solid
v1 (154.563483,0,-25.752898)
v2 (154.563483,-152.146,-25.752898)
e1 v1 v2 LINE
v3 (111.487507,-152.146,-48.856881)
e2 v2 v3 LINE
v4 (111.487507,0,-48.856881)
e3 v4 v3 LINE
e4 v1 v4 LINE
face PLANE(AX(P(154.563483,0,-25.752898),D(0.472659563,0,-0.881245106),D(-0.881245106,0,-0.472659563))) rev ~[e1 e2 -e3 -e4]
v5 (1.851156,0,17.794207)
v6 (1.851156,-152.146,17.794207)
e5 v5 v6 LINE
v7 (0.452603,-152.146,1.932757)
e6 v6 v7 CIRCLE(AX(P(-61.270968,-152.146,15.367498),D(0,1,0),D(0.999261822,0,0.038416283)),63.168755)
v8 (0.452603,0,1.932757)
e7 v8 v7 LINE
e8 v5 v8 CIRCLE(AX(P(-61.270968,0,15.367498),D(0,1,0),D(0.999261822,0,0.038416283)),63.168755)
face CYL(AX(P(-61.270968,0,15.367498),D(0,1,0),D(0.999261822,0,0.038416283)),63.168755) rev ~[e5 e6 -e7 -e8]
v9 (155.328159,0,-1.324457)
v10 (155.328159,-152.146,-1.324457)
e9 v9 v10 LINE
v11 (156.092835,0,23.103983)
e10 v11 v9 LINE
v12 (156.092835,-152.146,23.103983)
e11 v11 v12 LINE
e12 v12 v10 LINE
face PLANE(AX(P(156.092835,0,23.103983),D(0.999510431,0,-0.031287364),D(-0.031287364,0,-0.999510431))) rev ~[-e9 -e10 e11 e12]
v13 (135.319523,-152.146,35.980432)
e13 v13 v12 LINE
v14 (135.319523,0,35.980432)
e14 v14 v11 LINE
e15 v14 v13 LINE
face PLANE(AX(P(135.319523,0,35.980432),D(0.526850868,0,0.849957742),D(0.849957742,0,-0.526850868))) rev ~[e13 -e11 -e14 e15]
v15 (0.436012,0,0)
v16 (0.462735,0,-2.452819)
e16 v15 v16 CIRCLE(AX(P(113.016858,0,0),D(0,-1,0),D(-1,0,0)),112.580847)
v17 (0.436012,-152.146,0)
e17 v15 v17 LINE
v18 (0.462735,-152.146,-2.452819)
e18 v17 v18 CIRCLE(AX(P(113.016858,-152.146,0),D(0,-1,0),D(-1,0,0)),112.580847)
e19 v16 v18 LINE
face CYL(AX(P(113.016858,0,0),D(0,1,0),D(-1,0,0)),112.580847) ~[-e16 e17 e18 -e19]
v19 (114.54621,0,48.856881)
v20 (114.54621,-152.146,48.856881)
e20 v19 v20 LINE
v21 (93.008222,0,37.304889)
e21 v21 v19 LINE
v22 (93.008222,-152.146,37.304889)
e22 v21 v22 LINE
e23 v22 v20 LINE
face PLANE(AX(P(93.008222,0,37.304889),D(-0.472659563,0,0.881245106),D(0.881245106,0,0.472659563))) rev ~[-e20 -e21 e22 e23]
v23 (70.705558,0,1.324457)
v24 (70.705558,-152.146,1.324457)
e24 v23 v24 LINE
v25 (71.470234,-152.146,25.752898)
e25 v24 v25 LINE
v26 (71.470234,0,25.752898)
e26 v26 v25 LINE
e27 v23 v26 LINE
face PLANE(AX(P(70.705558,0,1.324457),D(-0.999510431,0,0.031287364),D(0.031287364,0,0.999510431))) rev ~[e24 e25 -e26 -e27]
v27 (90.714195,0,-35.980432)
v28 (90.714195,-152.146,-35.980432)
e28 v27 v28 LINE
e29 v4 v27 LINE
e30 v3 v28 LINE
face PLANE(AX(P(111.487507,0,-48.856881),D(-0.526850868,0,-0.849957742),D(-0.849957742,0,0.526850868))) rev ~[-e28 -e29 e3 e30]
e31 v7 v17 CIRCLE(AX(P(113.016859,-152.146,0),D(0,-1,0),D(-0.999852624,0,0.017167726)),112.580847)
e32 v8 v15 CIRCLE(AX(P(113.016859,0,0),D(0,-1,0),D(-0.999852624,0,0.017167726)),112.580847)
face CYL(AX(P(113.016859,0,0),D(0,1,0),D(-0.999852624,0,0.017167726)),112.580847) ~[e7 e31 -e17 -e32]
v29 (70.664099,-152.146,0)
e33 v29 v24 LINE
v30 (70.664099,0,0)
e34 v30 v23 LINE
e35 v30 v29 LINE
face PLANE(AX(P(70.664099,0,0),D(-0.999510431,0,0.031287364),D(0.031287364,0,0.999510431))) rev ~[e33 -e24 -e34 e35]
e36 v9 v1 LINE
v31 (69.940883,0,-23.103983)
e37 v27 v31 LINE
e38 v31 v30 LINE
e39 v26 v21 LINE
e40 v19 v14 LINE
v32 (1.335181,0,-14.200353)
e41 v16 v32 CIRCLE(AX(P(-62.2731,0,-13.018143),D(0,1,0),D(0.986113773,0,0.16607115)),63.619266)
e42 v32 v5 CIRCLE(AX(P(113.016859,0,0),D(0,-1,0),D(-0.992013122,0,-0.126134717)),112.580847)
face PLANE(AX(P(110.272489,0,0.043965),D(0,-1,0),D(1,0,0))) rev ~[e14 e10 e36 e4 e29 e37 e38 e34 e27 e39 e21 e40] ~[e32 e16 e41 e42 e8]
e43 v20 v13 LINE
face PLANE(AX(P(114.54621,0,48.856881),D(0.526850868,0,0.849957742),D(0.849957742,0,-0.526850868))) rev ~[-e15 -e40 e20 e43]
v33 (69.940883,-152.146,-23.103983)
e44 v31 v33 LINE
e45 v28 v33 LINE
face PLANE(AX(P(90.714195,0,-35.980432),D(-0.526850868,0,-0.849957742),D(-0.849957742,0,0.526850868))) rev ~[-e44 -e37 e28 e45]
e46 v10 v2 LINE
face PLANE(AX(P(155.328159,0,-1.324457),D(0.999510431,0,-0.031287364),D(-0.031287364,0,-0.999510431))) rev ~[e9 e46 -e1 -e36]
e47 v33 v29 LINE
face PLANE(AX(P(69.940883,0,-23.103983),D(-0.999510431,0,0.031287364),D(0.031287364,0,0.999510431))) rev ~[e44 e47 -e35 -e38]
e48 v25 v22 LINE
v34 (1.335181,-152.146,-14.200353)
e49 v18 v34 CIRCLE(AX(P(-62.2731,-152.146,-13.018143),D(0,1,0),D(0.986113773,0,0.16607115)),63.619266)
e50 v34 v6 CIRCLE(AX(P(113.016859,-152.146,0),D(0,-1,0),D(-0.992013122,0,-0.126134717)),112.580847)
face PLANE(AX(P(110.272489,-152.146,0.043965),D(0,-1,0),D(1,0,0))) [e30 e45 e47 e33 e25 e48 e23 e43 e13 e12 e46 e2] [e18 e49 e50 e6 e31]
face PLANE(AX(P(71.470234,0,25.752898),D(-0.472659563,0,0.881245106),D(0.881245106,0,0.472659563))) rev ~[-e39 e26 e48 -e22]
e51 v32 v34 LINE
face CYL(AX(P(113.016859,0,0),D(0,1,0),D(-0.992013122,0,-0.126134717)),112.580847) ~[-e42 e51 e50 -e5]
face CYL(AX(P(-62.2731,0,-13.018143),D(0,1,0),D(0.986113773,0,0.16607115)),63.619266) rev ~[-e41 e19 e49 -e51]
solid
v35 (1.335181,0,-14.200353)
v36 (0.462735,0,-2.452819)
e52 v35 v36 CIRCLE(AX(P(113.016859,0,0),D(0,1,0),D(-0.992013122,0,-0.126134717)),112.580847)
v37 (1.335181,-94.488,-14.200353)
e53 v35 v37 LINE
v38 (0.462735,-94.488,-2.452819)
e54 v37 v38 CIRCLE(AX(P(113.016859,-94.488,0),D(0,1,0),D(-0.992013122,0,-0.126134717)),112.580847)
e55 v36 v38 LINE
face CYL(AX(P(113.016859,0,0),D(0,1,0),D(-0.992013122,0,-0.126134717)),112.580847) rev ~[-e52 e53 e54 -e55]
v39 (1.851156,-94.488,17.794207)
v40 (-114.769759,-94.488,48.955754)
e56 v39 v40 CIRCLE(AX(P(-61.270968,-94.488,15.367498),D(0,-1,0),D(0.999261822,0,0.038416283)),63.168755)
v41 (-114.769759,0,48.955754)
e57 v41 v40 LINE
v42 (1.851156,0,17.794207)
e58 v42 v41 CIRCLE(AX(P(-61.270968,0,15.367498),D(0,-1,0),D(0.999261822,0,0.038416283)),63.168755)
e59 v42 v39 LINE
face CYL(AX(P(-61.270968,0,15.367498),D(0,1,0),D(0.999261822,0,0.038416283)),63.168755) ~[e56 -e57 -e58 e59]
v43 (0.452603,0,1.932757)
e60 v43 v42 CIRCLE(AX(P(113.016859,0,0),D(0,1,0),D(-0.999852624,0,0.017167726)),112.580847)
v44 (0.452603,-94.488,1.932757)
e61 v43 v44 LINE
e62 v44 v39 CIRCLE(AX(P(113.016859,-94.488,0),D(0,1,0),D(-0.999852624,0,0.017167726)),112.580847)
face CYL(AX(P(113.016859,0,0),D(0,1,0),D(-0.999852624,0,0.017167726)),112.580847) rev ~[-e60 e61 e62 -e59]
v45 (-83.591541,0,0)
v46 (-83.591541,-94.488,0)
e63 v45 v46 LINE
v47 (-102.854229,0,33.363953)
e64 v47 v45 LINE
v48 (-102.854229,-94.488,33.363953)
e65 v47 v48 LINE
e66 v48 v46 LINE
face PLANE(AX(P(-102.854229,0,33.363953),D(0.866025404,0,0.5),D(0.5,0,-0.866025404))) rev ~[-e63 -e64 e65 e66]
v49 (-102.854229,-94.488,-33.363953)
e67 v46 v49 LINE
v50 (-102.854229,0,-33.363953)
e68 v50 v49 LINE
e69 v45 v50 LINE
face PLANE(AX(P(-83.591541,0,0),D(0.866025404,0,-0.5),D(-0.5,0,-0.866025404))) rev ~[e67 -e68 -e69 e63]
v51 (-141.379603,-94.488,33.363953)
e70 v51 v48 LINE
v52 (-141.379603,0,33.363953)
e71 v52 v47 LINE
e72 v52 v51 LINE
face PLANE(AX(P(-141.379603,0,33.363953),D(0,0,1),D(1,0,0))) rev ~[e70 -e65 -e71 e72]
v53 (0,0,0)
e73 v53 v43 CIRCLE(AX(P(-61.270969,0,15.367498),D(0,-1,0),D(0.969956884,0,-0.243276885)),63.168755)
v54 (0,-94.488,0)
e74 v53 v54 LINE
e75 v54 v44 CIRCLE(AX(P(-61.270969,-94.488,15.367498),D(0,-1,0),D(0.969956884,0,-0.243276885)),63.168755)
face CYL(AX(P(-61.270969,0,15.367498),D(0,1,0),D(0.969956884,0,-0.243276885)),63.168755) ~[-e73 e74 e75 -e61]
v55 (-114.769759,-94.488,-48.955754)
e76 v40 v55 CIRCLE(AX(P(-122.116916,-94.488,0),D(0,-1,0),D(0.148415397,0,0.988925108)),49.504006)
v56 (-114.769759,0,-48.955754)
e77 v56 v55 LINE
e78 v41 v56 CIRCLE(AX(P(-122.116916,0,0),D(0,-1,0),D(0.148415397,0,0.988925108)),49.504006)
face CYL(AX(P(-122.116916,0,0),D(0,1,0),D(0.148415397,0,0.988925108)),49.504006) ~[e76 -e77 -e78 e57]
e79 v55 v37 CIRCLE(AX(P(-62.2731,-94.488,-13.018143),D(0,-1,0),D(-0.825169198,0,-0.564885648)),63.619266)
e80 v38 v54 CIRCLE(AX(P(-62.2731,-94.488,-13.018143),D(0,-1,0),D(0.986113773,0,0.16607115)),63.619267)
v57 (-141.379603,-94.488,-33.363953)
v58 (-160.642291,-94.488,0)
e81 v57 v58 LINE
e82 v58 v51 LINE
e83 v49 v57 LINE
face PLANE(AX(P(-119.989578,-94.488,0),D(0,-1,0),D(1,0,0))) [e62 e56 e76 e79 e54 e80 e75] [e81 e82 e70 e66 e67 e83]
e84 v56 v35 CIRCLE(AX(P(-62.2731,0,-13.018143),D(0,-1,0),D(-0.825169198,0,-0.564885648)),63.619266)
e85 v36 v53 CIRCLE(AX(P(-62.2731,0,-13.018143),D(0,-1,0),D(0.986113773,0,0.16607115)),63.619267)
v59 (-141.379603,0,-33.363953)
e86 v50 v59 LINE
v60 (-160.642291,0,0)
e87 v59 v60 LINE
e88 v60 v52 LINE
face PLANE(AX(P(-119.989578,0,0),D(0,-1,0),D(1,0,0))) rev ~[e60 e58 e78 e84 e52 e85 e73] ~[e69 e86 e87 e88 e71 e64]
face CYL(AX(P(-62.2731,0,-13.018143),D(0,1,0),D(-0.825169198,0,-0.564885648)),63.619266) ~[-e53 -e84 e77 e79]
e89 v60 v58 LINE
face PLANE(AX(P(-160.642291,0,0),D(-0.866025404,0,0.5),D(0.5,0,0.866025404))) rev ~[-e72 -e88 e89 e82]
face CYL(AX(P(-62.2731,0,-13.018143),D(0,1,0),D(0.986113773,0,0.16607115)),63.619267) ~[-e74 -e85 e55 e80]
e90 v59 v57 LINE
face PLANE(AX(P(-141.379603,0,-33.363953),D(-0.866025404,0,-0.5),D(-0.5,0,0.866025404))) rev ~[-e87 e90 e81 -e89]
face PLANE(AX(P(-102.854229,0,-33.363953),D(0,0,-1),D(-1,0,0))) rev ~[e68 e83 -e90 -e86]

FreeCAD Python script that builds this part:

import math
import FreeCAD as App
import Part
import Sketcher

V = App.Vector
Q = App.Units.Quantity


def add_polygon(sketch, points):
    """Adds a closed chain of lines whose ends are joined by coincident constraints."""
    first, n = sketch.GeometryCount, len(points)
    for a, b in zip(points, points[1:] + points[:1]):
        sketch.addGeometry(Part.LineSegment(App.Vector(*a, 0), App.Vector(*b, 0)), False)
    for i in range(n):
        sketch.addConstraint(Sketcher.Constraint("Coincident", first + i, 2, first + (i + 1) % n, 1))

doc = App.newDocument("Part")
body = doc.addObject("PartDesign::Body", "Body")

# Sketch on XZ plane
sketch1 = doc.addObject("Sketcher::SketchObject", "Sketch")
body.addObject(sketch1)
sketch1.AttachmentSupport = (doc.XZ_Plane, [""])
sketch1.MapMode = "FlatFace"
sketch1.addGeometry(Part.ArcOfCircle(Part.Circle(V(113, 0, 0), V(0, 0, 1), 112.6), math.radians(179.02), math.radians(180)), False)  # 0
sketch1.addGeometry(Part.ArcOfCircle(Part.Circle(V(113, 0, 0), V(0, 0, 1), 112.6), math.radians(180), math.radians(181.25)), False)  # 1
sketch1.addGeometry(Part.ArcOfCircle(Part.Circle(V(-62.3, -13, 0), V(0, 0, 1), 63.6), math.radians(-1.06), math.radians(9.56)), False)  # 2
sketch1.addGeometry(Part.ArcOfCircle(Part.Circle(V(113, 0, 0), V(0, 0, 1), 112.6), math.radians(-173), math.radians(171)), False)  # 3
sketch1.addGeometry(Part.ArcOfCircle(Part.Circle(V(-61.3, 15.4, 0), V(0, 0, 1), 63.2), math.radians(-12.28), math.radians(2.2)), False)  # 4
add_polygon(sketch1, [(90.7, -36), (69.9, -23.1), (70.7, 0), (70.7, 1.3), (71.5, 25.8), (93, 37.3), (114.5, 48.9), (135.3, 36), (156.1, 23.1), (155.3, -1.3), (154.6, -25.8), (111.5, -48.9)])  # lines 5-16
sketch1.addConstraint([
    Sketcher.Constraint("Tangent", 0, 2, 1, 1),
    Sketcher.Constraint("Coincident", 1, 2, 2, 2),
    Sketcher.Constraint("Coincident", 2, 1, 3, 1),
    Sketcher.Constraint("Coincident", 3, 2, 4, 2),
    Sketcher.Constraint("Coincident", 4, 1, 0, 1),
    Sketcher.Constraint("Coincident", 3, 3, 0, 3),
    Sketcher.Constraint("Equal", 0, 1),
    Sketcher.Constraint("Equal", 1, 3),
    Sketcher.Constraint("PointOnObject", 0, 3, -1),
    Sketcher.Constraint("PointOnObject", 0, 2, -1),
    Sketcher.Constraint("PointOnObject", 6, 2, -1),
    Sketcher.Constraint("Parallel", 6, 7),
    Sketcher.Constraint("Parallel", 7, 8),
    Sketcher.Constraint("Parallel", 9, 10),
    Sketcher.Constraint("Parallel", 5, 11),
    Sketcher.Constraint("Parallel", 11, 12),
    Sketcher.Constraint("Parallel", 8, 13),
    Sketcher.Constraint("Parallel", 13, 14),
    Sketcher.Constraint("Parallel", 10, 15),
    Sketcher.Constraint("Parallel", 12, 16),
    Sketcher.Constraint("Equal", 5, 8),
    Sketcher.Constraint("Equal", 8, 9),
    Sketcher.Constraint("Equal", 9, 10),
    Sketcher.Constraint("Equal", 10, 11),
    Sketcher.Constraint("Equal", 11, 12),
    Sketcher.Constraint("Equal", 12, 13),
    Sketcher.Constraint("Equal", 13, 14),
    Sketcher.Constraint("Equal", 14, 16),
    Sketcher.Constraint("Radius", 0, Q("112.580847 mm")),
    Sketcher.Constraint("Radius", 2, Q("63.619266 mm")),
    Sketcher.Constraint("Radius", 4, Q("63.168755 mm")),
    Sketcher.Constraint("Distance", 6, Q("23.1153 mm")),
    Sketcher.Constraint("DistanceX", 2, 3, -1, 1, Q("62.2731 mm")),
    Sketcher.Constraint("DistanceX", -1, 1, 6, 2, Q("70.664099 mm")),
    Sketcher.Constraint("DistanceY", -1, 1, 8, 2, Q("25.752898 mm")),
    Sketcher.Constraint("DistanceY", 14, 2, -1, 1, Q("25.752898 mm")),
    Sketcher.Constraint("DistanceX", 2, 1, 5, 2, Q("68.605701 mm")),
    Sketcher.Constraint("DistanceX", 7, 2, 1, 3, Q("42.3113 mm")),
    Sketcher.Constraint("DistanceX", 9, 2, 11, 2, Q("42.311301 mm")),
    Sketcher.Constraint("DistanceX", 4, 3, -1, 1, Q("61.270968 mm")),
    Sketcher.Constraint("DistanceY", 1, 2, -1, 1, Q("2.452819 mm")),
    Sketcher.Constraint("DistanceY", 2, 3, 4, 3, Q("28.385641 mm")),
])
pad1 = doc.addObject("PartDesign::Pad", "Pad")
body.addObject(pad1)
pad1.Profile = sketch1
pad1.Length = Q("5.99 in")
body2 = doc.addObject("PartDesign::Body", "Body001")

# Sketch on XZ plane
sketch2 = doc.addObject("Sketcher::SketchObject", "Sketch001")
body2.addObject(sketch2)
sketch2.AttachmentSupport = (doc.getObject("XZ_Plane001"), [""])
sketch2.MapMode = "FlatFace"
sketch2.addGeometry(Part.ArcOfCircle(Part.Circle(V(-61.270969, 15.367498, 0), V(0, 0, 1), 63.168755), math.radians(-14.080026), math.radians(-12.279463)), False)  # 0
sketch2.addGeometry(Part.ArcOfCircle(Part.Circle(V(113.016859, 0, 0), V(0, 0, 1), 112.580847), math.radians(170.905856), math.radians(179.016313)), False)  # 1
sketch2.addGeometry(Part.ArcOfCircle(Part.Circle(V(-61.270968, 15.367498, 0), V(0, 0, 1), 63.168755), math.radians(2.201633), math.radians(147.87808)), False)  # 2
sketch2.addGeometry(Part.ArcOfCircle(Part.Circle(V(-122.116916, 0, 0), V(0, 0, 1), 49.504006), math.radians(81.464892), math.radians(278.535108)), False)  # 3
sketch2.addGeometry(Part.ArcOfCircle(Part.Circle(V(-62.2731, -13.018143, 0), V(0, 0, 1), 63.619266), math.radians(-145.605649), math.radians(-1.064764)), False)  # 4
sketch2.addGeometry(Part.ArcOfCircle(Part.Circle(V(113.016859, 0, 0), V(0, 0, 1), 112.580847), math.radians(-178.751588), math.radians(-172.753711)), False)  # 5
sketch2.addGeometry(Part.ArcOfCircle(Part.Circle(V(-62.2731, -13.018143, 0), V(0, 0, 1), 63.619267), math.radians(9.559465), math.radians(11.807595)), False)  # 6
add_polygon(sketch2, [(-141.379603, 33.363953), (-102.854229, 33.363953), (-83.591541, 0), (-102.854229, -33.363953), (-141.379603, -33.363953), (-160.642291, 0)])  # lines 7-12
sketch2.addConstraint([
    Sketcher.Constraint("Coincident", 0, 2, 1, 2),
    Sketcher.Constraint("Coincident", 1, 1, 2, 1),
    Sketcher.Constraint("Coincident", 2, 2, 3, 1),
    Sketcher.Constraint("Coincident", 3, 2, 4, 1),
    Sketcher.Constraint("Coincident", 4, 2, 5, 2),
    Sketcher.Constraint("Coincident", 5, 1, 6, 1),
    Sketcher.Constraint("Coincident", 6, 2, 0, 1),
    Sketcher.Constraint("Horizontal", 7),
    Sketcher.Constraint("Horizontal", 10),
    Sketcher.Constraint("Coincident", 6, 2, -1, 1),
    Sketcher.Constraint("Coincident", 2, 3, 0, 3),
    Sketcher.Constraint("Coincident", 5, 3, 1, 3),
    Sketcher.Constraint("Coincident", 6, 3, 4, 3),
    Sketcher.Constraint("PointOnObject", 1, 3, -1),
    Sketcher.Constraint("PointOnObject", 3, 3, -1),
    Sketcher.Constraint("PointOnObject", 8, 2, -1),
    Sketcher.Constraint("PointOnObject", 11, 2, -1),
    Sketcher.Constraint("Radius", 0, Q("63.168755 mm")),
    Sketcher.Constraint("Radius", 1, Q("112.580847 mm")),
    Sketcher.Constraint("Radius", 2, Q("63.168755 mm")),
    Sketcher.Constraint("Radius", 3, Q("49.504006 mm")),
    Sketcher.Constraint("Radius", 4, Q("63.619266 mm")),
    Sketcher.Constraint("Radius", 5, Q("112.580847 mm")),
    Sketcher.Constraint("Radius", 6, Q("63.619267 mm")),
    Sketcher.Constraint("DistanceX", 4, 3, -1, 1, Q("62.2731 mm")),
    Sketcher.Constraint("DistanceY", 4, 3, 0, 2, Q("14.950901 mm")),
    Sketcher.Constraint("DistanceY", 7, 2, 2, 2, Q("15.591801 mm")),
    Sketcher.Constraint("DistanceY", 3, 2, 9, 2, Q("15.591801 mm")),
    Sketcher.Constraint("DistanceX", 7, 1, 7, 2, Q("38.525375 mm")),
    Sketcher.Constraint("DistanceX", 10, 2, 10, 1, Q("38.525375 mm")),
    Sketcher.Constraint("DistanceX", 0, 3, -1, 1, Q("61.270969 mm")),
    Sketcher.Constraint("DistanceX", 2, 2, -1, 1, Q("114.769759 mm")),
    Sketcher.Constraint("DistanceX", 7, 2, -1, 1, Q("102.854229 mm")),
    Sketcher.Constraint("DistanceX", 8, 2, -1, 1, Q("83.591541 mm")),
    Sketcher.Constraint("DistanceX", 9, 2, -1, 1, Q("102.854229 mm")),
    Sketcher.Constraint("DistanceX", 11, 2, -1, 1, Q("160.642291 mm")),
])
pad2 = doc.addObject("PartDesign::Pad", "Pad001")
body2.addObject(pad2)
pad2.Profile = sketch2
pad2.Length = Q("3.72 in")

doc.recompute()
